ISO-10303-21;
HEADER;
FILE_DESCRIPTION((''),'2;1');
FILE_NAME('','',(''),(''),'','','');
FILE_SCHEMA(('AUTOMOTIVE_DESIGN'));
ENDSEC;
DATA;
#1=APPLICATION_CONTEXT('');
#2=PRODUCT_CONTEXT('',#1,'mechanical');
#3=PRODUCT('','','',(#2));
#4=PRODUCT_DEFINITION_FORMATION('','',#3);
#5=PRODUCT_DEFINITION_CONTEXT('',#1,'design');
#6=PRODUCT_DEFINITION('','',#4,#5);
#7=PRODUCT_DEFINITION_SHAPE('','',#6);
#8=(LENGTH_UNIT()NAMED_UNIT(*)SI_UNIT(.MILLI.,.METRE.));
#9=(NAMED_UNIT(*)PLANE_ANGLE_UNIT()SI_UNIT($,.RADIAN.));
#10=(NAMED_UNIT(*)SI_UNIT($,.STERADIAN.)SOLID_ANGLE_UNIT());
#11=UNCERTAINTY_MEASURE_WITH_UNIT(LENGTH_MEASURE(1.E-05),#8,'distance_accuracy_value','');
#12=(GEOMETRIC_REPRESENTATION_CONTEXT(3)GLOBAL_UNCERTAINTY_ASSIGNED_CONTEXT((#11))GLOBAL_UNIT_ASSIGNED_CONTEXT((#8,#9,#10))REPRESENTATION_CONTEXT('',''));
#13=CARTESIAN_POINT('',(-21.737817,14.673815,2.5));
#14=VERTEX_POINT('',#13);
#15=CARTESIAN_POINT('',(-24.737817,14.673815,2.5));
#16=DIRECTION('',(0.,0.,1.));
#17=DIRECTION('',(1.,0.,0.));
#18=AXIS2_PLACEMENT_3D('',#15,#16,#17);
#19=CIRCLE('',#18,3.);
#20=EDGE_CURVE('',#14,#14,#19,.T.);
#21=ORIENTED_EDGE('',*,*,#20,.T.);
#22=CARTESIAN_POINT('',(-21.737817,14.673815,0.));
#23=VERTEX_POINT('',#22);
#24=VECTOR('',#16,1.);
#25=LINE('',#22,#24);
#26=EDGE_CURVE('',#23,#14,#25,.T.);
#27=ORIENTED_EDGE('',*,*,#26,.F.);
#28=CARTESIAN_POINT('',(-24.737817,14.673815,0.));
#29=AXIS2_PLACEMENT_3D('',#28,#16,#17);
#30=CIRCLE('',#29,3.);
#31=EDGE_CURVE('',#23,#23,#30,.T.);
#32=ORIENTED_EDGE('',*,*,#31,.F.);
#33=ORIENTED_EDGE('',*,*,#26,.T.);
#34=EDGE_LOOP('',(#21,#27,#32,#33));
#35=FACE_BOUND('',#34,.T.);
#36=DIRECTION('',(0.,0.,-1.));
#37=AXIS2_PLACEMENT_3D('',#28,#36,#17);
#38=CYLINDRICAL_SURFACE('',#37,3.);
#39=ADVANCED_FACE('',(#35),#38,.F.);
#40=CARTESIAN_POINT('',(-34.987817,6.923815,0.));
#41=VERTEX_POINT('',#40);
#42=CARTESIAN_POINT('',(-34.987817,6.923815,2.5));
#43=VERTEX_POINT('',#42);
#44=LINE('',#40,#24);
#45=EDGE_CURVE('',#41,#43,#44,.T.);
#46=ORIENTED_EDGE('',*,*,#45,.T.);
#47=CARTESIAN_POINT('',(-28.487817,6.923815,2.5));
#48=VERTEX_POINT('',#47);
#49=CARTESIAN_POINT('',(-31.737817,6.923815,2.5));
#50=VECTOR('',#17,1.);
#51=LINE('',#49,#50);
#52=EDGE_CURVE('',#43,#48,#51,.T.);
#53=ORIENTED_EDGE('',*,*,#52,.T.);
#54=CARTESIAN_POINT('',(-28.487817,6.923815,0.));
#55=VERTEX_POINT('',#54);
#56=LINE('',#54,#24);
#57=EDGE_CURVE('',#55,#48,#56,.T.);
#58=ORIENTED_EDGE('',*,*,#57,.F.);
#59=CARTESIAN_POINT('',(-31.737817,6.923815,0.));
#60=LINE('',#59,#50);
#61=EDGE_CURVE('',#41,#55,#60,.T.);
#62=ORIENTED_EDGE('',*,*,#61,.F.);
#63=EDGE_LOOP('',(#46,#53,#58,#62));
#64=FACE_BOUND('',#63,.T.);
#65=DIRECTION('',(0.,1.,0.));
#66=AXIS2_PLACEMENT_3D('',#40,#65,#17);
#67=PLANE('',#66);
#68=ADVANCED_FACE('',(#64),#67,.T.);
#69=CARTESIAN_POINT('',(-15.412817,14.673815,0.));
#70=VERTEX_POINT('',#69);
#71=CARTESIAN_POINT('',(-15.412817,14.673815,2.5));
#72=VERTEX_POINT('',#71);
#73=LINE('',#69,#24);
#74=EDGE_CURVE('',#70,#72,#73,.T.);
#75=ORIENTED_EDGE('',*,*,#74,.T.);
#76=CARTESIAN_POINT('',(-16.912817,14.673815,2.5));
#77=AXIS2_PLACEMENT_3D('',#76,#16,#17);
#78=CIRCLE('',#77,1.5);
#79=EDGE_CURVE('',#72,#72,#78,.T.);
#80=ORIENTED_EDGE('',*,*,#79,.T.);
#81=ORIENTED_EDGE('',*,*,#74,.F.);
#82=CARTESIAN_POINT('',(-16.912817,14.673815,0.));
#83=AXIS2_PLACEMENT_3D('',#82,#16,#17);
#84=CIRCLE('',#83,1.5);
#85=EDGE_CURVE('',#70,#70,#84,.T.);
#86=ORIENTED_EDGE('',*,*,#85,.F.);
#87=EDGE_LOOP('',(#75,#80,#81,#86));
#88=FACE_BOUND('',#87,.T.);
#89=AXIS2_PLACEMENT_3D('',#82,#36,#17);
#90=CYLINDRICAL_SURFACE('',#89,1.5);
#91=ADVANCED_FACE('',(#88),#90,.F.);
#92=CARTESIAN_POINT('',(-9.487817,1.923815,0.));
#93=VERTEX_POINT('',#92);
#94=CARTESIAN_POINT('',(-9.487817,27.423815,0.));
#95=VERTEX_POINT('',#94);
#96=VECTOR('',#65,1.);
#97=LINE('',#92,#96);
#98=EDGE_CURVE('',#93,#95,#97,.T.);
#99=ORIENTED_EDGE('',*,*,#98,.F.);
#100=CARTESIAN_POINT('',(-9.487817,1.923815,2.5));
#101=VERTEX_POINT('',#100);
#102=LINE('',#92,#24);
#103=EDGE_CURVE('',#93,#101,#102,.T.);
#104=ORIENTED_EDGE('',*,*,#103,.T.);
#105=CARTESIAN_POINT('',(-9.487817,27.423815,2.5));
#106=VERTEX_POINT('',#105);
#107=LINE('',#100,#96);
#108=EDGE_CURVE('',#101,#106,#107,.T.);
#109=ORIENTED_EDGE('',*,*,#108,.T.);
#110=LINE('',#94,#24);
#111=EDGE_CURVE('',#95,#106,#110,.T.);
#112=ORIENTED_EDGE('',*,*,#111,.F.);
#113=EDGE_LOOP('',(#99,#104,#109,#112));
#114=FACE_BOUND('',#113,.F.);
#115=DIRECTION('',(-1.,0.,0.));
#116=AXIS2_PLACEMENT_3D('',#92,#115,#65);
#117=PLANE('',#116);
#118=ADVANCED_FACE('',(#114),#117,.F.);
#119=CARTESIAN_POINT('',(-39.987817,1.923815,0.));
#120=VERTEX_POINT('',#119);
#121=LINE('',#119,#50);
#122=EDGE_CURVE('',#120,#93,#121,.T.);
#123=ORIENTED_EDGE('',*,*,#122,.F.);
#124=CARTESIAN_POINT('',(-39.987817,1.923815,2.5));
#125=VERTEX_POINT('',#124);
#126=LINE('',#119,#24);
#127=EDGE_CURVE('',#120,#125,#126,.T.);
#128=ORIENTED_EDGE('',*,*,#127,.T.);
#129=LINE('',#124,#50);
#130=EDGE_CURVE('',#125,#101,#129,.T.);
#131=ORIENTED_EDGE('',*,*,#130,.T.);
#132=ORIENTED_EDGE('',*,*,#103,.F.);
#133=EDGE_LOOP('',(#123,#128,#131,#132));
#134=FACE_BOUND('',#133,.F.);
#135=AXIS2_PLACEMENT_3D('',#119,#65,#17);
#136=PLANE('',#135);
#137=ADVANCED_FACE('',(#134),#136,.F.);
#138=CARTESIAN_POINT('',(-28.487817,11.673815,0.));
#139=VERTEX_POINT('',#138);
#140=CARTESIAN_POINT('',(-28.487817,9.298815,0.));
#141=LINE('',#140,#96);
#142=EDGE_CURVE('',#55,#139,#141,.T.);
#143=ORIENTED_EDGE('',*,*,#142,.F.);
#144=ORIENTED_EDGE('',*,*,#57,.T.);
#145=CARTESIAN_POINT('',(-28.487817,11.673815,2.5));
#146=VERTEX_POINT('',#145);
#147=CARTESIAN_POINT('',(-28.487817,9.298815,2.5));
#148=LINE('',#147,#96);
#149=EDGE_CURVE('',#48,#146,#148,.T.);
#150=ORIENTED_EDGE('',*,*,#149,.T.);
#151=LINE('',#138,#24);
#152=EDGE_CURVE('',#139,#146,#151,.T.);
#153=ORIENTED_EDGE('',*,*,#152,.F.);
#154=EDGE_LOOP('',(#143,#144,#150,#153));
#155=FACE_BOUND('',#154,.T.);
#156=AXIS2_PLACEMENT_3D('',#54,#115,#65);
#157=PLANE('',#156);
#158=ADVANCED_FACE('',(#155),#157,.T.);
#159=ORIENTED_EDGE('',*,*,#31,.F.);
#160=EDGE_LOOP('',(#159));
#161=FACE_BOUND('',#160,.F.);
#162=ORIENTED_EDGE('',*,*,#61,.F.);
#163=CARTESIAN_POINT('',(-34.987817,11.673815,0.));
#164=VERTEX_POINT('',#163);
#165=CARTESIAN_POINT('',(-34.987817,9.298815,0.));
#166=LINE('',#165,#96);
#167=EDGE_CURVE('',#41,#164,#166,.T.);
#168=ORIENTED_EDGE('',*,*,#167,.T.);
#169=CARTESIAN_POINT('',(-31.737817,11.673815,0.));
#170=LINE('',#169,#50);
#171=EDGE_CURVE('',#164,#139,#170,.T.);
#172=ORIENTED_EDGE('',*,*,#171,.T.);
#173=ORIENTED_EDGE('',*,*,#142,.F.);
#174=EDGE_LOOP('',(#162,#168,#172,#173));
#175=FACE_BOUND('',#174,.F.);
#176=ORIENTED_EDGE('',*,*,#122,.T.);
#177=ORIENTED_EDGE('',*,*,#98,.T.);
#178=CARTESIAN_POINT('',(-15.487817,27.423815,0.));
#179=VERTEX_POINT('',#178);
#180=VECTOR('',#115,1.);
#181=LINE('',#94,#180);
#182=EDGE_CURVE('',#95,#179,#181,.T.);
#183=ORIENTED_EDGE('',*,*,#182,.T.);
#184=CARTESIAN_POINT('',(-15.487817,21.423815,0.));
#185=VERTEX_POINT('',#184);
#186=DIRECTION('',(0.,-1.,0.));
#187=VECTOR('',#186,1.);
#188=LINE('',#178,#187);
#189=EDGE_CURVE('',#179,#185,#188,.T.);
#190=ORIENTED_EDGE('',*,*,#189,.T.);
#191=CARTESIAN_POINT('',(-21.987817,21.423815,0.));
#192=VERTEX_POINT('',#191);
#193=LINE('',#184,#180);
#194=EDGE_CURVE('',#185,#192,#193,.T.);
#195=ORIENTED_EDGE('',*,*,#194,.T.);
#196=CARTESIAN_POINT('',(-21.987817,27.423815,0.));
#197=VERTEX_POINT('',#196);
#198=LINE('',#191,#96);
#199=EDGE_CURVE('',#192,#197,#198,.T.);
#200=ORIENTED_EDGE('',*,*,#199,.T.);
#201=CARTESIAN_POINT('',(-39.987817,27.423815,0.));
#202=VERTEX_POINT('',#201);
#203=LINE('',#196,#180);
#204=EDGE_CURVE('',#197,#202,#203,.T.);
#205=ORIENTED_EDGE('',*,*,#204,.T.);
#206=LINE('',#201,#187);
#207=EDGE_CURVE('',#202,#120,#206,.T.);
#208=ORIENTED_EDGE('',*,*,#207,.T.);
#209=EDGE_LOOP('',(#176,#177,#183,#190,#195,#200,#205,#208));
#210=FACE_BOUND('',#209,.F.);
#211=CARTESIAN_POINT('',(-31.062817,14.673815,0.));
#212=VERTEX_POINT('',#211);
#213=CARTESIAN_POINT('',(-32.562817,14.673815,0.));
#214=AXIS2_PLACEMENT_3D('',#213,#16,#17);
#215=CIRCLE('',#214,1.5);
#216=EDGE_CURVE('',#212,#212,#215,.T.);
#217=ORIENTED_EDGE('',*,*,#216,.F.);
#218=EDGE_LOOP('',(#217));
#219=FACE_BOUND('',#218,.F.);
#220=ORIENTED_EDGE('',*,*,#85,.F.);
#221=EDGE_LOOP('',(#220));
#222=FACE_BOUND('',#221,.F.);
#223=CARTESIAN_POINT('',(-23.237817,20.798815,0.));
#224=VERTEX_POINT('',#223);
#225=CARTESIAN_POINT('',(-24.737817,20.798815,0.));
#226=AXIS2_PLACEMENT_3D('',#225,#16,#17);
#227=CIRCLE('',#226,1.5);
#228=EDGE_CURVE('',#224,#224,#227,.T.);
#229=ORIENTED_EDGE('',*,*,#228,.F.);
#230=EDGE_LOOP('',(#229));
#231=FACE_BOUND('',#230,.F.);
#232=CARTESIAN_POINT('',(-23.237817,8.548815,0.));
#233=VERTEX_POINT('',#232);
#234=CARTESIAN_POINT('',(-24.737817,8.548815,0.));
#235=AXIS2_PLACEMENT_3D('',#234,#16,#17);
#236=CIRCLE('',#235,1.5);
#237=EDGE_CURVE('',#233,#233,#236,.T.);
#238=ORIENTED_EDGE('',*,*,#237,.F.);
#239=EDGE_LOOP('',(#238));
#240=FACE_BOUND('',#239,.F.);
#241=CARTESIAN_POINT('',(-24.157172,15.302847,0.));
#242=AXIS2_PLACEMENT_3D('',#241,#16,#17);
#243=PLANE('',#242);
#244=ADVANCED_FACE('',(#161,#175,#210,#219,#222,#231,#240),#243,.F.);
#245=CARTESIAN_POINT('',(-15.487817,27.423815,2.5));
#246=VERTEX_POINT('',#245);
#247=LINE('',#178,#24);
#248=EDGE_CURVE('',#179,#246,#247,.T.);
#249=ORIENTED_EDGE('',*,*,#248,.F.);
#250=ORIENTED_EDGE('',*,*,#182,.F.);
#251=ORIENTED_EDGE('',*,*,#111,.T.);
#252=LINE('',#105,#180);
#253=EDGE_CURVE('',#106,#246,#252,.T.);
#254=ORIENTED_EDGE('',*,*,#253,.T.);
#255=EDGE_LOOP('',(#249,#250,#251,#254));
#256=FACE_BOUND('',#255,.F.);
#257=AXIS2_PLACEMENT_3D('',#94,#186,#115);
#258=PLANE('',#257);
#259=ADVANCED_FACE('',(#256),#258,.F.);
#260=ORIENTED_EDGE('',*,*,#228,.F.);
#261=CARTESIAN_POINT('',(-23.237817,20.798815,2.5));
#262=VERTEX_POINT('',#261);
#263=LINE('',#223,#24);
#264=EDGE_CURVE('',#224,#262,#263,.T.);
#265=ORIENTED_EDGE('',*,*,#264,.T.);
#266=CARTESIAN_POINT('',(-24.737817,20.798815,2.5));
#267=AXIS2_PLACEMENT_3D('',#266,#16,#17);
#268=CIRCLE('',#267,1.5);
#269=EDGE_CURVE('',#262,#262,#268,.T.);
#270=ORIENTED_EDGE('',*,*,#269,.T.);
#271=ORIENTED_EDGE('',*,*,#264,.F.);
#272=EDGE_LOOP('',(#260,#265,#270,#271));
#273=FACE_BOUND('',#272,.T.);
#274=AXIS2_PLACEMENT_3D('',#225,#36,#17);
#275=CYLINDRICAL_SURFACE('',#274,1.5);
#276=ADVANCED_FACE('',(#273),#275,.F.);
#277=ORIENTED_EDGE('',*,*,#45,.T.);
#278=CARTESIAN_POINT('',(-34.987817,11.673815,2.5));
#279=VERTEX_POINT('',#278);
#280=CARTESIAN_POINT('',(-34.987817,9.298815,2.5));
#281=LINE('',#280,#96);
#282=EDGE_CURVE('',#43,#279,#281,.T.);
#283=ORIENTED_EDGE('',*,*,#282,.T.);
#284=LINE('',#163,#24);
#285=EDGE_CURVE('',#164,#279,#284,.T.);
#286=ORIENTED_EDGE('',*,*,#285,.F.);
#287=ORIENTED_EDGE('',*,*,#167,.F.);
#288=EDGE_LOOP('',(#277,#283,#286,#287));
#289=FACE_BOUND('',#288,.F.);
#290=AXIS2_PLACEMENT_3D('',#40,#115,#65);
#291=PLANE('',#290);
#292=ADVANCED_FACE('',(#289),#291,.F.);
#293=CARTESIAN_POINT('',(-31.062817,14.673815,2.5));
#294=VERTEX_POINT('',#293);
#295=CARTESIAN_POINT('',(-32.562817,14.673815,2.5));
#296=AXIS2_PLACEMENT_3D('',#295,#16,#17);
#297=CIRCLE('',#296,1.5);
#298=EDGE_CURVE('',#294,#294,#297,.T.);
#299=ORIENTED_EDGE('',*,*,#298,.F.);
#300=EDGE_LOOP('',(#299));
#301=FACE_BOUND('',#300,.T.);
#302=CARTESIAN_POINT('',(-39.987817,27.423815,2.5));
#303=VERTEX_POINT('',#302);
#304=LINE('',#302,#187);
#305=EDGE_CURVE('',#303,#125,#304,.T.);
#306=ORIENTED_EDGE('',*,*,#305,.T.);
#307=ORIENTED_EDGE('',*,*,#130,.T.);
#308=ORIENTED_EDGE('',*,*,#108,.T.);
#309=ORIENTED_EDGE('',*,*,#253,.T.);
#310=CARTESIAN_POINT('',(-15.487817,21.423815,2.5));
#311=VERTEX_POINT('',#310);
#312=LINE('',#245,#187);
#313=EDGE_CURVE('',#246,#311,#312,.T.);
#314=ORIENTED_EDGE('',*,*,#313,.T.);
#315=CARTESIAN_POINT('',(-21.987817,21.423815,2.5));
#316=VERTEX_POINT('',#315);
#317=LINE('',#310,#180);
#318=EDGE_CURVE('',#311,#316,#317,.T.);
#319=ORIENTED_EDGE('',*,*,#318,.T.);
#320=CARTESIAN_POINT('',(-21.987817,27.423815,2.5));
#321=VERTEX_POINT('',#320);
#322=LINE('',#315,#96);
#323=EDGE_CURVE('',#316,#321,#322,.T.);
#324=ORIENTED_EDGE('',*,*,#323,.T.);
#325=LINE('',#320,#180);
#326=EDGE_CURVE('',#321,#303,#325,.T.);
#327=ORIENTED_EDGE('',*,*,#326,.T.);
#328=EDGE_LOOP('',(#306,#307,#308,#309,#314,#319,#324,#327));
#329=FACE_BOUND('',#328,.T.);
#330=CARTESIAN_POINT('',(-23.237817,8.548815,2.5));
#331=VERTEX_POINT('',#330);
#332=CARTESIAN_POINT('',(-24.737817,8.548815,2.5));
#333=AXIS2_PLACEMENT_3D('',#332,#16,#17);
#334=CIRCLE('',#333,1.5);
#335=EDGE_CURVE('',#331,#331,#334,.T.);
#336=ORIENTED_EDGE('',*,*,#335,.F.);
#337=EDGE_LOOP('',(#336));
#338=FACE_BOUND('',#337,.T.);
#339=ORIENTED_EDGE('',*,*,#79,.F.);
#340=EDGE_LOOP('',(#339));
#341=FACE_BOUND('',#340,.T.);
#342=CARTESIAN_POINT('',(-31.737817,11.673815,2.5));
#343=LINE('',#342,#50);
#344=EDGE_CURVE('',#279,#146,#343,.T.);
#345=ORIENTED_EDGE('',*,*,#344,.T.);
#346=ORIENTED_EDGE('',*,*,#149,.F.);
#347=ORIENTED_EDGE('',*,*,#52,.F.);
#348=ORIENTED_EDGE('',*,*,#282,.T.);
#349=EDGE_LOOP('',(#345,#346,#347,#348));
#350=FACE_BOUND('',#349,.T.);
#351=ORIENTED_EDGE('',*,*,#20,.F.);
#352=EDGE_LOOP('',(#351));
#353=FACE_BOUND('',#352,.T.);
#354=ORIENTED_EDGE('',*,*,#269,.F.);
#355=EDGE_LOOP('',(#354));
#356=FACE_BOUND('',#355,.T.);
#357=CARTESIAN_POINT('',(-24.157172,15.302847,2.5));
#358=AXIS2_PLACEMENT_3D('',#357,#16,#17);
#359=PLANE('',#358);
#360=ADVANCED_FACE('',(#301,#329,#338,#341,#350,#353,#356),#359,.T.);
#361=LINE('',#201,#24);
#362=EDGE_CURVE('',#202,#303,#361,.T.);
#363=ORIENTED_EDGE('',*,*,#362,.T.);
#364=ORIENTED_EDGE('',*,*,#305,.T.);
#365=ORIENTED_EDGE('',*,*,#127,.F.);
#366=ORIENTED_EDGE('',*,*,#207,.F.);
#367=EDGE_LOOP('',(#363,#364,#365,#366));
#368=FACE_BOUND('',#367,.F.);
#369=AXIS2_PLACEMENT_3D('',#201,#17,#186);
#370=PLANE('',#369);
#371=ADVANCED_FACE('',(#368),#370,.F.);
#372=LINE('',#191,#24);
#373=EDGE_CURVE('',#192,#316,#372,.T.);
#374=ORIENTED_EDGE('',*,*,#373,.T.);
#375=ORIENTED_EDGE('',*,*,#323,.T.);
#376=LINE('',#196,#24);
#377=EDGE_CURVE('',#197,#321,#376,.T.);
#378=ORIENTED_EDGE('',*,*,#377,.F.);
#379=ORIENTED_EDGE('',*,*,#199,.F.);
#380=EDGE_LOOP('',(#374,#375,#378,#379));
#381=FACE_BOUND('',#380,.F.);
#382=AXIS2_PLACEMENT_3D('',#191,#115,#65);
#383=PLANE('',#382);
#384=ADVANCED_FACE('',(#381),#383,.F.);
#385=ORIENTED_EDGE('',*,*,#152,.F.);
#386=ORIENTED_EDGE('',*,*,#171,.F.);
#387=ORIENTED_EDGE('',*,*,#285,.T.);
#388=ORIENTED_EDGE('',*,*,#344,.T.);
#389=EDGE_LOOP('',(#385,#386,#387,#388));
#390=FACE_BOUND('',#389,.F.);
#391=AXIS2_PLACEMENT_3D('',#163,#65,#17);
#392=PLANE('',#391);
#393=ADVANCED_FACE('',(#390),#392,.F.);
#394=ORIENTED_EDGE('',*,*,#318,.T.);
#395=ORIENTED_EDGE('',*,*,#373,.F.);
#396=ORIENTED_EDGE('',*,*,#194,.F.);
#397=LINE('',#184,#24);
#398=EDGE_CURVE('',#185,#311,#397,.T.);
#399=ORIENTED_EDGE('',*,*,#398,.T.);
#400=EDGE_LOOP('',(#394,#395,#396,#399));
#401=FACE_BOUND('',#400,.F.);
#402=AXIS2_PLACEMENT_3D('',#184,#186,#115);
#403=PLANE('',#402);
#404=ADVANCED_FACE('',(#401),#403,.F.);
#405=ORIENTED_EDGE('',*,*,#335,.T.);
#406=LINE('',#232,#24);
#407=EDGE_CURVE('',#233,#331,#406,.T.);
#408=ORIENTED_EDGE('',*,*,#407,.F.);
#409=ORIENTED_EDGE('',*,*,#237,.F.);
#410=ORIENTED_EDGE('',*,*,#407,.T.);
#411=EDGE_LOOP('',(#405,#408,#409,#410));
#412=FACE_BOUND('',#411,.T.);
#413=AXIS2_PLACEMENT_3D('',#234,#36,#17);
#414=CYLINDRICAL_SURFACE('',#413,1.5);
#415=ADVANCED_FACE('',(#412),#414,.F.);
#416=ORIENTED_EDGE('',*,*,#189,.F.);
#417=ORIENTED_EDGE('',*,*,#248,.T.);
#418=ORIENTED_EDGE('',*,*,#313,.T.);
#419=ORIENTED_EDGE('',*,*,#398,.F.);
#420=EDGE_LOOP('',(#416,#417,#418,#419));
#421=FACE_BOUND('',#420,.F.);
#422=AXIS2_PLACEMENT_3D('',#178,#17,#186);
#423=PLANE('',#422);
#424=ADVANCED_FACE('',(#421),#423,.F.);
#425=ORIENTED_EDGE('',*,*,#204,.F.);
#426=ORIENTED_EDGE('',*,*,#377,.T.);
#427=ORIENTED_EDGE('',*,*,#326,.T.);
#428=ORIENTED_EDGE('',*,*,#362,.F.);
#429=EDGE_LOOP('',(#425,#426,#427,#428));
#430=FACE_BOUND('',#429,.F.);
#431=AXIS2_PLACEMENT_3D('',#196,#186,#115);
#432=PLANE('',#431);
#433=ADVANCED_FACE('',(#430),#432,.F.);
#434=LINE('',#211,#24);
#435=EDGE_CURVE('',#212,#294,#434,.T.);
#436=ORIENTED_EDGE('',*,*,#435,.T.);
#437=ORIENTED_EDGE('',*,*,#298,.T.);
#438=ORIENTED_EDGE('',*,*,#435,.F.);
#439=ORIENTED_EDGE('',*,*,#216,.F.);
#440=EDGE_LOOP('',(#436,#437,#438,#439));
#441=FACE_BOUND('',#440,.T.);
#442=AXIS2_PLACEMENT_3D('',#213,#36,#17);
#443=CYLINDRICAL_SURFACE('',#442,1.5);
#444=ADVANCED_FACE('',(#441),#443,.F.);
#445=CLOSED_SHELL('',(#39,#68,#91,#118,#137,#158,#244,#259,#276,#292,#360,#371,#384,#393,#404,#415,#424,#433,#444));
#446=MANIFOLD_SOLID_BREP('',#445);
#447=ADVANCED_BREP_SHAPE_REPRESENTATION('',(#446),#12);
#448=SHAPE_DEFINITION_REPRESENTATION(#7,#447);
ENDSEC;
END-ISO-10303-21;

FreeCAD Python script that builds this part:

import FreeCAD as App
import Part
import Sketcher
from FreeCAD import Vector

doc = App.newDocument("Part")
body = doc.addObject("PartDesign::Body", "Body")

# Sketch on XY plane
sketch1 = doc.addObject("Sketcher::SketchObject", "Sketch")
body.addObject(sketch1)
sketch1.AttachmentSupport = (doc.XY_Plane, [""])
sketch1.MapMode = "FlatFace"
sketch1.addGeometry([
    Part.LineSegment(Vector(-40, 27.4, 0), Vector(-40, 1.9, 0)),  # 0
    Part.LineSegment(Vector(-40, 1.9, 0), Vector(-9.5, 1.9, 0)),  # 1
    Part.LineSegment(Vector(-9.5, 1.9, 0), Vector(-9.5, 27.4, 0)),  # 2
    Part.LineSegment(Vector(-9.5, 27.4, 0), Vector(-15.5, 27.4, 0)),  # 3
    Part.LineSegment(Vector(-15.5, 27.4, 0), Vector(-15.5, 21.4, 0)),  # 4
    Part.LineSegment(Vector(-15.5, 21.4, 0), Vector(-22, 21.4, 0)),  # 5
    Part.LineSegment(Vector(-22, 21.4, 0), Vector(-22, 27.4, 0)),  # 6
    Part.LineSegment(Vector(-22, 27.4, 0), Vector(-40, 27.4, 0)),  # 7
    Part.LineSegment(Vector(-28.5, 6.9, 0), Vector(-35, 6.9, 0)),  # 8
    Part.LineSegment(Vector(-35, 6.9, 0), Vector(-35, 11.7, 0)),  # 9
    Part.LineSegment(Vector(-35, 11.7, 0), Vector(-28.5, 11.7, 0)),  # 10
    Part.LineSegment(Vector(-28.5, 11.7, 0), Vector(-28.5, 6.9, 0)),  # 11
    Part.Circle(Vector(-24.7, 8.5, 0), Vector(0, 0, 1), 1.5),  # 12
    Part.Circle(Vector(-32.6, 14.7, 0), Vector(0, 0, 1), 1.5),  # 13
    Part.Circle(Vector(-24.7, 14.7, 0), Vector(0, 0, 1), 3),  # 14
    Part.Circle(Vector(-16.9, 14.7, 0), Vector(0, 0, 1), 1.5),  # 15
    Part.Circle(Vector(-24.7, 20.8, 0), Vector(0, 0, 1), 1.5),  # 16
], False)
sketch1.addConstraint([
    Sketcher.Constraint("Coincident", 0, 2, 1, 1),
    Sketcher.Constraint("Coincident", 1, 2, 2, 1),
    Sketcher.Constraint("Coincident", 2, 2, 3, 1),
    Sketcher.Constraint("Coincident", 3, 2, 4, 1),
    Sketcher.Constraint("Coincident", 4, 2, 5, 1),
    Sketcher.Constraint("Coincident", 5, 2, 6, 1),
    Sketcher.Constraint("Coincident", 6, 2, 7, 1),
    Sketcher.Constraint("Coincident", 7, 2, 0, 1),
    Sketcher.Constraint("Coincident", 8, 2, 9, 1),
    Sketcher.Constraint("Coincident", 9, 2, 10, 1),
    Sketcher.Constraint("Coincident", 10, 2, 11, 1),
    Sketcher.Constraint("Coincident", 11, 2, 8, 1),
    Sketcher.Constraint("Vertical", 0),
    Sketcher.Constraint("Horizontal", 1),
    Sketcher.Constraint("Vertical", 2),
    Sketcher.Constraint("Horizontal", 3),
    Sketcher.Constraint("Vertical", 4),
    Sketcher.Constraint("Horizontal", 5),
    Sketcher.Constraint("Vertical", 6),
    Sketcher.Constraint("Horizontal", 7),
    Sketcher.Constraint("Horizontal", 8),
    Sketcher.Constraint("Vertical", 9),
    Sketcher.Constraint("Horizontal", 10),
    Sketcher.Constraint("Vertical", 11),
    Sketcher.Constraint("Equal", 12, 13),
    Sketcher.Constraint("Equal", 13, 15),
    Sketcher.Constraint("Equal", 15, 16),
    Sketcher.Constraint("Horizontal", 13, 3, 14, 3),
    Sketcher.Constraint("Horizontal", 14, 3, 15, 3),
    Sketcher.Constraint("Horizontal", 3, 2, 6, 2),
    Sketcher.Constraint("Vertical", 12, 3, 14, 3),
    Sketcher.Constraint("Vertical", 14, 3, 16, 3),
    Sketcher.Constraint("Equal", 5, 8),
    Sketcher.Constraint("Equal", 3, 4),
    Sketcher.Constraint("Diameter", 12, 3.0),
    Sketcher.Constraint("Diameter", 14, 6.0),
    Sketcher.Constraint("DistanceX", 3, 2, 3, 1, 6.0),
    Sketcher.Constraint("DistanceX", 7, 2, 7, 1, 18.0),
    Sketcher.Constraint("DistanceX", 1, 1, 1, 2, 30.5),
    Sketcher.Constraint("DistanceY", 0, 2, 0, 1, 25.5),
    Sketcher.Constraint("DistanceX", 0, 2, 8, 2, 5.0),
    Sketcher.Constraint("DistanceY", 0, 2, 8, 2, 5.0),
    Sketcher.Constraint("DistanceY", 9, 2, 13, 3, 3.0),
    Sketcher.Constraint("DistanceY", 9, 1, 9, 2, 4.75),
    Sketcher.Constraint("DistanceX", 13, 3, 15, 3, 15.65),
    Sketcher.Constraint("DistanceY", 12, 3, 16, 3, 12.25),
    Sketcher.Constraint("DistanceX", 0, 2, 12, 3, 15.25),
    Sketcher.Constraint("DistanceX", 13, 3, 12, 3, 7.825),
    Sketcher.Constraint("DistanceY", 12, 3, 13, 3, 6.125),
    Sketcher.Constraint("DistanceX", 12, 3, -1, 1, 24.737817),
    Sketcher.Constraint("DistanceY", -1, 1, 12, 3, 8.548815),
])
pad1 = doc.addObject("PartDesign::Pad", "Pad")
body.addObject(pad1)
pad1.Profile = sketch1
pad1.Length = 2.5

doc.recompute()
